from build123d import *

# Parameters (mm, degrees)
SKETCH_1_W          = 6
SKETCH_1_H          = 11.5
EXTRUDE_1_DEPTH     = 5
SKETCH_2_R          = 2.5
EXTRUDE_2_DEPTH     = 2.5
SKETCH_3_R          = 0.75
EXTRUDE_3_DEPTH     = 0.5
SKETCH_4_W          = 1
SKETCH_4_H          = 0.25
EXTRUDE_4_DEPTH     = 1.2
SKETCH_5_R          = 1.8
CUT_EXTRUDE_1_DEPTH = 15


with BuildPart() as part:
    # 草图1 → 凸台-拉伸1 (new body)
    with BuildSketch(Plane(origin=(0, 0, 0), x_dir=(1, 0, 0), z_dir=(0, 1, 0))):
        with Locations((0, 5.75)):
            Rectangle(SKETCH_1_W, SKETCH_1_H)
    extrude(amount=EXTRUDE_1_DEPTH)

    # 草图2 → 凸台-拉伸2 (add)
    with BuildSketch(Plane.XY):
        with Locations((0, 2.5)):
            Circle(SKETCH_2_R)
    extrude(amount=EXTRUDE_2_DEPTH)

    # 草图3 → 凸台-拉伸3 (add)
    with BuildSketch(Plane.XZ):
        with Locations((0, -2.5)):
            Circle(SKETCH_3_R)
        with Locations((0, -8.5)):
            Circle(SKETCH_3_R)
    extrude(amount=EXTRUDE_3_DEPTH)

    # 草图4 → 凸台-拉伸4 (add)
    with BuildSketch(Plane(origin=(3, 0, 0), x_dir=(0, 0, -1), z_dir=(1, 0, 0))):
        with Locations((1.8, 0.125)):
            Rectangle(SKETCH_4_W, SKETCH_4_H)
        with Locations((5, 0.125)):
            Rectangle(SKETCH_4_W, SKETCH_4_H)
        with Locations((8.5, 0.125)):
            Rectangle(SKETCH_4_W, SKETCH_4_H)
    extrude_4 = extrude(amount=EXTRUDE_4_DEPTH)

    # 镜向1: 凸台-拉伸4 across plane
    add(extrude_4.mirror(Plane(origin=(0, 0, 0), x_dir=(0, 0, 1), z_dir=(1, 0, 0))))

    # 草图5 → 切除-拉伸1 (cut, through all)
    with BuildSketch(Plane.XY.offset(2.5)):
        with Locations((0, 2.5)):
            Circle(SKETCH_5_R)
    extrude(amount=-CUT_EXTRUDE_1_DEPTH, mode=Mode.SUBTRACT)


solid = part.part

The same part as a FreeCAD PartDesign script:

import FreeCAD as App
import Part
import Sketcher


def add_polygon(sketch, points):
    """Adds a closed chain of lines whose ends are joined by coincident constraints."""
    first, n = sketch.GeometryCount, len(points)
    for a, b in zip(points, points[1:] + points[:1]):
        sketch.addGeometry(Part.LineSegment(App.Vector(*a, 0), App.Vector(*b, 0)), False)
    for i in range(n):
        sketch.addConstraint(Sketcher.Constraint("Coincident", first + i, 2, first + (i + 1) % n, 1))

doc = App.newDocument("Part")
body = doc.addObject("PartDesign::Body", "Body")

# Sketch on XZ plane
sketch1 = body.newObject("Sketcher::SketchObject", "Sketch")
sketch1.AttachmentSupport = (doc.getObject("XZ_Plane"), [""])
sketch1.MapMode = "FlatFace"
add_polygon(sketch1, [(-3, -11.5), (-3, 0), (3, 0), (3, -11.5)])  # lines 0-3
sketch1.addConstraint([
    Sketcher.Constraint("Vertical", 0),
    Sketcher.Constraint("Horizontal", 1),
    Sketcher.Constraint("Vertical", 2),
    Sketcher.Constraint("Horizontal", 3),
    Sketcher.Constraint("Symmetric", 0, 2, 1, 2, -1, 1),
    Sketcher.Constraint("DistanceX", 1, 1, 1, 2, 6.0),
    Sketcher.Constraint("DistanceY", 0, 1, 0, 2, 11.5),
])
pad1 = body.newObject("PartDesign::Pad", "Pad")
pad1.Profile = sketch1
pad1.Length = 5
pad1.Reversed = True

# Sketch on XY plane
sketch2 = body.newObject("Sketcher::SketchObject", "Sketch001")
sketch2.AttachmentSupport = (doc.getObject("XY_Plane"), [""])
sketch2.MapMode = "FlatFace"
sketch2.addGeometry(Part.Circle(App.Vector(0, 2.5, 0), App.Vector(0, 0, 1), 2.5), False)
sketch2.addConstraint([
    Sketcher.Constraint("PointOnObject", 0, 3, -2),
    Sketcher.Constraint("Diameter", 0, 5.0),
    Sketcher.Constraint("DistanceY", -1, 1, 0, 3, 2.5),
])
pad2 = body.newObject("PartDesign::Pad", "Pad001")
pad2.Profile = sketch2
pad2.Length = 2.5

# Sketch on XZ plane
sketch3 = body.newObject("Sketcher::SketchObject", "Sketch002")
sketch3.AttachmentSupport = (doc.getObject("XZ_Plane"), [""])
sketch3.MapMode = "FlatFace"
sketch3.addGeometry([
    Part.Circle(App.Vector(0, -2.5, 0), App.Vector(0, 0, 1), 0.75),
    Part.Circle(App.Vector(0, -8.5, 0), App.Vector(0, 0, 1), 0.75),
], False)
sketch3.addConstraint([
    Sketcher.Constraint("Equal", 0, 1),
    Sketcher.Constraint("PointOnObject", 0, 3, -2),
    Sketcher.Constraint("PointOnObject", 1, 3, -2),
    Sketcher.Constraint("Diameter", 0, 1.5),
    Sketcher.Constraint("DistanceY", 1, 3, 0, 3, 6.0),
    Sketcher.Constraint("DistanceY", 0, 3, -1, 1, 2.5),
])
pad3 = body.newObject("PartDesign::Pad", "Pad002")
pad3.Profile = sketch3
pad3.Length = 0.5

# Sketch on YZ plane
sketch4 = body.newObject("Sketcher::SketchObject", "Sketch003")
sketch4.AttachmentSupport = (doc.getObject("YZ_Plane"), [""])
sketch4.MapMode = "FlatFace"
sketch4.AttachmentOffset = App.Placement(App.Vector(0, 0, 3), App.Rotation())
add_polygon(sketch4, [(0.25, -1.3), (0, -1.3), (0, -2.3), (0.25, -2.3)])  # lines 0-3
add_polygon(sketch4, [(0.25, -4.5), (0, -4.5), (0, -5.5), (0.25, -5.5)])  # lines 4-7
add_polygon(sketch4, [(0.25, -8), (0, -8), (0, -9), (0.25, -9)])  # lines 8-11
sketch4.addConstraint([
    Sketcher.Constraint("Horizontal", 0),
    Sketcher.Constraint("Vertical", 1),
    Sketcher.Constraint("Horizontal", 2),
    Sketcher.Constraint("Vertical", 3),
    Sketcher.Constraint("Horizontal", 4),
    Sketcher.Constraint("Vertical", 5),
    Sketcher.Constraint("Horizontal", 6),
    Sketcher.Constraint("Vertical", 7),
    Sketcher.Constraint("Horizontal", 8),
    Sketcher.Constraint("Vertical", 9),
    Sketcher.Constraint("Horizontal", 10),
    Sketcher.Constraint("Vertical", 11),
    Sketcher.Constraint("PointOnObject", 0, 2, -2),
    Sketcher.Constraint("PointOnObject", 4, 2, -2),
    Sketcher.Constraint("PointOnObject", 8, 2, -2),
    Sketcher.Constraint("Vertical", 3, 2, 6, 2),
    Sketcher.Constraint("Vertical", 7, 2, 10, 2),
    Sketcher.Constraint("Equal", 3, 5),
    Sketcher.Constraint("Equal", 7, 9),
    Sketcher.Constraint("DistanceY", 1, 2, 1, 1, 1.0),
    Sketcher.Constraint("DistanceY", 8, 2, -1, 1, 8.0),
    Sketcher.Constraint("DistanceX", 0, 2, 0, 1, 0.25),
    Sketcher.Constraint("DistanceY", 0, 2, -1, 1, 1.3),
    Sketcher.Constraint("DistanceY", 4, 2, -1, 1, 4.5),
])
pad4 = body.newObject("PartDesign::Pad", "Pad003")
pad4.Profile = sketch4
pad4.Length = 1.2
doc.recompute()

mirrored = body.newObject("PartDesign::Mirrored", "Mirrored")
mirrored.Originals = [pad4]
mirrored.MirrorPlane = (doc.getObject("YZ_Plane"), [""])
body.Tip = mirrored

# Sketch on XY plane
sketch5 = body.newObject("Sketcher::SketchObject", "Sketch004")
sketch5.AttachmentSupport = (doc.getObject("XY_Plane"), [""])
sketch5.MapMode = "FlatFace"
sketch5.AttachmentOffset = App.Placement(App.Vector(0, 0, 2.5), App.Rotation())
sketch5.addGeometry(Part.Circle(App.Vector(0, 2.5, 0), App.Vector(0, 0, 1), 1.8), False)
sketch5.addConstraint([
    Sketcher.Constraint("PointOnObject", 0, 3, -2),
    Sketcher.Constraint("Diameter", 0, 3.6),
    Sketcher.Constraint("DistanceY", -1, 1, 0, 3, 2.5),
])
pocket1 = body.newObject("PartDesign::Pocket", "Pocket")
pocket1.Profile = sketch5
pocket1.Type = "ThroughAll"

doc.recompute()
